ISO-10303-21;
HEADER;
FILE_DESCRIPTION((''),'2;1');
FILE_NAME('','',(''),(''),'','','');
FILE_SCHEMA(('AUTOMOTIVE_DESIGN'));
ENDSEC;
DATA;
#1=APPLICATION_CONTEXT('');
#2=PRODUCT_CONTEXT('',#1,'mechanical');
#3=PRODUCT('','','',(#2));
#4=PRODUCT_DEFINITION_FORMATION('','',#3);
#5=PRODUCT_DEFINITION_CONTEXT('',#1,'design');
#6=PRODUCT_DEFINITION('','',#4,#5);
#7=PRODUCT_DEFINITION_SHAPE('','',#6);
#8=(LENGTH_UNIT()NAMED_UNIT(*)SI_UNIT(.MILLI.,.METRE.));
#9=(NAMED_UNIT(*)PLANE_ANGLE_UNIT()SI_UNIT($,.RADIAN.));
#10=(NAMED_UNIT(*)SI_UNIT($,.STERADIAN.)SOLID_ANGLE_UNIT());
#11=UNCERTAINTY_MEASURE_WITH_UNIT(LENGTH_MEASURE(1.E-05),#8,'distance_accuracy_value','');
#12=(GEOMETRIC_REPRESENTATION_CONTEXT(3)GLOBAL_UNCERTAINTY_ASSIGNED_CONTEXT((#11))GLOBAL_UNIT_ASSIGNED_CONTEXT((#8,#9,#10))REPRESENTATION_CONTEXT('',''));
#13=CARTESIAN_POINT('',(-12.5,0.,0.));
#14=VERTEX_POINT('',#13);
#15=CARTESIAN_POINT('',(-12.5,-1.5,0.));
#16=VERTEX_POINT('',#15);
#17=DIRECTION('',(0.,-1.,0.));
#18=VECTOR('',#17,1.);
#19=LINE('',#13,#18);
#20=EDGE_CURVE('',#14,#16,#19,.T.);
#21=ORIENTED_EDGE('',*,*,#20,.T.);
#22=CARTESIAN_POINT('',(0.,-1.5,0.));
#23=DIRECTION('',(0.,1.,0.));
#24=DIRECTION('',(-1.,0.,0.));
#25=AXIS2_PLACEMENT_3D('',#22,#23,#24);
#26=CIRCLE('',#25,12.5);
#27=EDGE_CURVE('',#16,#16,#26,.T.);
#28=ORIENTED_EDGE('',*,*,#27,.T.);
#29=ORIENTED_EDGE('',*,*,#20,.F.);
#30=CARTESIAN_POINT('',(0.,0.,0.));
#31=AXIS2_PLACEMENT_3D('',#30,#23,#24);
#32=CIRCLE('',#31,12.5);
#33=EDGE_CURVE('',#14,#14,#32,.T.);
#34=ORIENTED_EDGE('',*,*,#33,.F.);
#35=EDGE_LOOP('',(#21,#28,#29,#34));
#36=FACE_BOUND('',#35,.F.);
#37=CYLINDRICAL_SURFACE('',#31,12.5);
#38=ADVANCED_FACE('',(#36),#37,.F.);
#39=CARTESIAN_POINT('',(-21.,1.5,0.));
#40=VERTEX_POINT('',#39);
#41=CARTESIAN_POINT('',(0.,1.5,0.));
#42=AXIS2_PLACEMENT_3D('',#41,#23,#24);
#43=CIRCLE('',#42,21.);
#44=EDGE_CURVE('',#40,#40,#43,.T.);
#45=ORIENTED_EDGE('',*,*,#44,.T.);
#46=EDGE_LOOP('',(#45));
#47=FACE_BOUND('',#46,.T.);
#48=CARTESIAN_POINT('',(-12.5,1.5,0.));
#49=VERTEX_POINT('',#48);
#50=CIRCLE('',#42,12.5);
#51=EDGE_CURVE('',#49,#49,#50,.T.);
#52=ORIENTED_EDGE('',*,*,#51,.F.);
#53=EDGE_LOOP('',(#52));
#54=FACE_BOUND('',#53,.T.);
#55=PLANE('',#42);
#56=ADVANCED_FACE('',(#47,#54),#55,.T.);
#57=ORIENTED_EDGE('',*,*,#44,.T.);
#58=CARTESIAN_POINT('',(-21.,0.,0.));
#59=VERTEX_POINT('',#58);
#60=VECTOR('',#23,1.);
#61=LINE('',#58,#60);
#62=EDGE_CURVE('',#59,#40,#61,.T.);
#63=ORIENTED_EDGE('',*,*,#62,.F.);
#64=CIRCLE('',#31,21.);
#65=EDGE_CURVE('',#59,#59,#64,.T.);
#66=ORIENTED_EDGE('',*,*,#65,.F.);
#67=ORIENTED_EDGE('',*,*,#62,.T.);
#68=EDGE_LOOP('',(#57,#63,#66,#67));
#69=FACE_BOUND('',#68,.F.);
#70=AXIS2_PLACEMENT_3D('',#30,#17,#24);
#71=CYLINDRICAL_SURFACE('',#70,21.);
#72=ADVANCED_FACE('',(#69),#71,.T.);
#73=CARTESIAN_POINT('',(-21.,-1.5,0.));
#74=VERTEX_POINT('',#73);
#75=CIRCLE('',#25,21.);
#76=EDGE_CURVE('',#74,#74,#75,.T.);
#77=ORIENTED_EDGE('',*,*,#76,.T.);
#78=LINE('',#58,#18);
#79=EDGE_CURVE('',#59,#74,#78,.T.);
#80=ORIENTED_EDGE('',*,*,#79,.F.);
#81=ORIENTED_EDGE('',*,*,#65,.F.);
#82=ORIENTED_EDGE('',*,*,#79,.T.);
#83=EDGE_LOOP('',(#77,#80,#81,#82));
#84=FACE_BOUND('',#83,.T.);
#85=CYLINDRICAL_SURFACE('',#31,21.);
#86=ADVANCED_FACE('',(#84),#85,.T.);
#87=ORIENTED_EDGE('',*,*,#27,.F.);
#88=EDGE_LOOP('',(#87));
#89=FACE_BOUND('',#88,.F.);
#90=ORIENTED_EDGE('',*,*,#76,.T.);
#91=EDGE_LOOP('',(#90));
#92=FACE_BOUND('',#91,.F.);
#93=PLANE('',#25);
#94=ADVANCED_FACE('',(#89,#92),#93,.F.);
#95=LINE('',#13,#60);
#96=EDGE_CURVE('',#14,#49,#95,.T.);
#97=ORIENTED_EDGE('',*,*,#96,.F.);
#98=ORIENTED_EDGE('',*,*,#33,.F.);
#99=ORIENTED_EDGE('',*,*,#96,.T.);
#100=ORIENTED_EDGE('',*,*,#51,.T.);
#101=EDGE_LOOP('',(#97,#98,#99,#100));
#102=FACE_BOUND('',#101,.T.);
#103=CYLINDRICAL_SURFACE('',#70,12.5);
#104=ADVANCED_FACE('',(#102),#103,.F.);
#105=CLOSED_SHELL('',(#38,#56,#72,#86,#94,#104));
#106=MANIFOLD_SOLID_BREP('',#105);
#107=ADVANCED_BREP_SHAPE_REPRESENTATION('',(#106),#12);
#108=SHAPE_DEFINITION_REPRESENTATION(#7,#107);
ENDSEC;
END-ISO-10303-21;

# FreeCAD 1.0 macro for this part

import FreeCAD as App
import Part
import Sketcher

V = App.Vector

doc = App.newDocument("Part")
body = doc.addObject("PartDesign::Body", "Body")

sketch1 = body.newObject("Sketcher::SketchObject", "Sketch")
sketch1.AttachmentSupport = (doc.getObject("XZ_Plane"), [""])
sketch1.MapMode = "FlatFace"
sketch1.addGeometry([
    Part.Circle(V(0, 0, 0), V(0, 0, 1), 21),
    Part.Circle(V(0, 0, 0), V(0, 0, 1), 12),
], False)
sketch1.addConstraint([
    Sketcher.Constraint("Coincident", 0, 3, -1, 1),
    Sketcher.Constraint("Coincident", 1, 3, -1, 1),
    Sketcher.Constraint("Diameter", 0, 42.0),
    Sketcher.Constraint("Diameter", 1, 25.0),
])
pad1 = body.newObject("PartDesign::Pad", "Pad")
pad1.Profile = sketch1
pad1.Length = 3
pad1.Midplane = True

doc.recompute()
